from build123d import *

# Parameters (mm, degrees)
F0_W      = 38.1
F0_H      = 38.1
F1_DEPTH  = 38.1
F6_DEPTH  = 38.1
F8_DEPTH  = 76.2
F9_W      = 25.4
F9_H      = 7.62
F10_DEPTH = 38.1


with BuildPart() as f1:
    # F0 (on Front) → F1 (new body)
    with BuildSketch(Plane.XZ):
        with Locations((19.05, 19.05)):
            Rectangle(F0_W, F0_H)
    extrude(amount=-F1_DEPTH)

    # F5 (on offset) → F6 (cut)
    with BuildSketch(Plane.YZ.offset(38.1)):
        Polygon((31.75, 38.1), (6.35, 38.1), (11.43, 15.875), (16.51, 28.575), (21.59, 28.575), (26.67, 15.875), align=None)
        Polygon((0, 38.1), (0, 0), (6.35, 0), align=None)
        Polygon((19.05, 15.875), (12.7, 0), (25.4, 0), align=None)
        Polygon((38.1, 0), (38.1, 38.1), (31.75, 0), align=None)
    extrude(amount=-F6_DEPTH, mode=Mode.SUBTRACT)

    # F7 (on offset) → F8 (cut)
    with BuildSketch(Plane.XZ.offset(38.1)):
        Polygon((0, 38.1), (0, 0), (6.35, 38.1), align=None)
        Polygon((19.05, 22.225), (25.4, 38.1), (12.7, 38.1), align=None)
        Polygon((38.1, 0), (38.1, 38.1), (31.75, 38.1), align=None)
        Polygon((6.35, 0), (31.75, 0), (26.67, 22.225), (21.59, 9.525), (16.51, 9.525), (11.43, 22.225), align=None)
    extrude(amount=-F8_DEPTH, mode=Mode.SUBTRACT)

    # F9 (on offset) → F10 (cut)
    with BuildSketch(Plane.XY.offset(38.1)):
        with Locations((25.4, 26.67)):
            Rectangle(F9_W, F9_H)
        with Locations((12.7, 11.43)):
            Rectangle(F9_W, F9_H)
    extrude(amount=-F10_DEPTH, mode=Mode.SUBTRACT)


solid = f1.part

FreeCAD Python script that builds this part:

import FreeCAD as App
import Part
import Sketcher
from FreeCAD import Vector
Q = App.Units.Quantity


def add_polygon(sketch, points):
    """Adds a closed chain of lines whose ends are joined by coincident constraints."""
    first, n = sketch.GeometryCount, len(points)
    for a, b in zip(points, points[1:] + points[:1]):
        sketch.addGeometry(Part.LineSegment(App.Vector(*a, 0), App.Vector(*b, 0)), False)
    for i in range(n):
        sketch.addConstraint(Sketcher.Constraint("Coincident", first + i, 2, first + (i + 1) % n, 1))

doc = App.newDocument("Part")
body = doc.addObject("PartDesign::Body", "Body")

# Sketch on XZ plane
sketch1 = doc.addObject("Sketcher::SketchObject", "Sketch")
body.addObject(sketch1)
sketch1.AttachmentSupport = (doc.XZ_Plane, [""])
sketch1.MapMode = "FlatFace"
add_polygon(sketch1, [(0, 38.1), (0, 0), (38.1, 0), (38.1, 38.1)])  # lines 0-3
sketch1.addConstraint(Sketcher.Constraint("Vertical", 0))
sketch1.addConstraint(Sketcher.Constraint("Horizontal", 1))
sketch1.addConstraint(Sketcher.Constraint("Vertical", 2))
sketch1.addConstraint(Sketcher.Constraint("Horizontal", 3))
sketch1.addConstraint(Sketcher.Constraint("Coincident", 0, 2, -1, 1))
sketch1.addConstraint(Sketcher.Constraint("Equal", 3, 0))
sketch1.addConstraint(Sketcher.Constraint("DistanceX", 1, 1, 1, 2, Q("1.5 in")))
pad1 = doc.addObject("PartDesign::Pad", "Pad")
body.addObject(pad1)
pad1.Profile = sketch1
pad1.Length = Q("1.5 in")
pad1.Reversed = True

# Sketch on YZ plane
sketch2 = doc.addObject("Sketcher::SketchObject", "Sketch001")
body.addObject(sketch2)
sketch2.AttachmentSupport = (doc.YZ_Plane, [""])
sketch2.MapMode = "FlatFace"
sketch2.AttachmentOffset = App.Placement(Vector(0, 0, 1.5 * 25.4), App.Rotation())
add_polygon(sketch2, [(31.75, 38.1), (6.35, 38.1), (11.43, 15.875), (16.51, 28.575), (21.59, 28.575), (26.67, 15.875)])  # lines 0-5
add_polygon(sketch2, [(0, 38.1), (0, 0), (6.35, 0)])  # lines 6-8
add_polygon(sketch2, [(19.05, 15.875), (12.7, 0), (25.4, 0)])  # lines 9-11
add_polygon(sketch2, [(38.1, 0), (38.1, 38.1), (31.75, 0)])  # lines 12-14
sketch2.addConstraint(Sketcher.Constraint("Horizontal", 0))
sketch2.addConstraint(Sketcher.Constraint("Horizontal", 3))
sketch2.addConstraint(Sketcher.Constraint("Vertical", 6))
sketch2.addConstraint(Sketcher.Constraint("Horizontal", 7))
sketch2.addConstraint(Sketcher.Constraint("Horizontal", 10))
sketch2.addConstraint(Sketcher.Constraint("Vertical", 12))
sketch2.addConstraint(Sketcher.Constraint("Horizontal", 14))
sketch2.addConstraint(Sketcher.Constraint("Coincident", 6, 2, -1, 1))
sketch2.addConstraint(Sketcher.Constraint("PointOnObject", 9, 2, -1))
sketch2.addConstraint(Sketcher.Constraint("PointOnObject", 13, 2, -1))
sketch2.addConstraint(Sketcher.Constraint("Parallel", 2, 9))
sketch2.addConstraint(Sketcher.Constraint("Parallel", 4, 11))
sketch2.addConstraint(Sketcher.Constraint("Horizontal", 1, 2, 4, 2))
sketch2.addConstraint(Sketcher.Constraint("Horizontal", 5, 2, 8, 2))
sketch2.addConstraint(Sketcher.Constraint("Horizontal", 4, 2, 11, 2))
sketch2.addConstraint(Sketcher.Constraint("Horizontal", 8, 2, 12, 2))
sketch2.addConstraint(Sketcher.Constraint("Vertical", 0, 2, 7, 2))
sketch2.addConstraint(Sketcher.Constraint("Vertical", 5, 2, 13, 2))
sketch2.addConstraint(Sketcher.Constraint("Equal", 7, 14))
sketch2.addConstraint(Sketcher.Constraint("Equal", 2, 4))
sketch2.addConstraint(Sketcher.Constraint("Equal", 1, 5))
sketch2.addConstraint(Sketcher.Constraint("DistanceX", 0, 2, 0, 1, Q("1 in")))
sketch2.addConstraint(Sketcher.Constraint("DistanceX", 3, 1, 3, 2, Q("0.2 in")))
sketch2.addConstraint(Sketcher.Constraint("DistanceX", 10, 1, 10, 2, Q("0.5 in")))
sketch2.addConstraint(Sketcher.Constraint("DistanceY", 6, 2, 6, 1, Q("1.5 in")))
sketch2.addConstraint(Sketcher.Constraint("DistanceX", -1, 1, 10, 2, Q("1 in")))
sketch2.addConstraint(Sketcher.Constraint("DistanceX", 9, 2, 14, 2, Q("1 in")))
sketch2.addConstraint(Sketcher.Constraint("DistanceX", 0, 2, 1, 2, Q("0.2 in")))
sketch2.addConstraint(Sketcher.Constraint("DistanceY", 1, 2, 2, 2, Q("0.5 in")))
pocket1 = doc.addObject("PartDesign::Pocket", "Pocket")
body.addObject(pocket1)
pocket1.Profile = sketch2
pocket1.Length = Q("1.5 in")

# Sketch on XZ plane
sketch3 = doc.addObject("Sketcher::SketchObject", "Sketch002")
body.addObject(sketch3)
sketch3.AttachmentSupport = (doc.XZ_Plane, [""])
sketch3.MapMode = "FlatFace"
sketch3.AttachmentOffset = App.Placement(Vector(0, 0, 1.5 * 25.4), App.Rotation())
add_polygon(sketch3, [(0, 38.1), (0, 0), (6.35, 38.1)])  # lines 0-2
add_polygon(sketch3, [(19.05, 22.225), (25.4, 38.1), (12.7, 38.1)])  # lines 3-5
add_polygon(sketch3, [(38.1, 0), (38.1, 38.1), (31.75, 38.1)])  # lines 6-8
add_polygon(sketch3, [(6.35, 0), (31.75, 0), (26.67, 22.225), (21.59, 9.525), (16.51, 9.525), (11.43, 22.225)])  # lines 9-14
sketch3.addConstraint(Sketcher.Constraint("Vertical", 0))
sketch3.addConstraint(Sketcher.Constraint("Horizontal", 2))
sketch3.addConstraint(Sketcher.Constraint("Horizontal", 4))
sketch3.addConstraint(Sketcher.Constraint("Vertical", 6))
sketch3.addConstraint(Sketcher.Constraint("Horizontal", 7))
sketch3.addConstraint(Sketcher.Constraint("Horizontal", 9))
sketch3.addConstraint(Sketcher.Constraint("Horizontal", 12))
sketch3.addConstraint(Sketcher.Constraint("Coincident", 0, 2, -1, 1))
sketch3.addConstraint(Sketcher.Constraint("PointOnObject", 8, 2, -1))
sketch3.addConstraint(Sketcher.Constraint("PointOnObject", 9, 2, -1))
sketch3.addConstraint(Sketcher.Constraint("Parallel", 3, 11))
sketch3.addConstraint(Sketcher.Constraint("Parallel", 5, 13))
sketch3.addConstraint(Sketcher.Constraint("Horizontal", 2, 2, 3, 2))
sketch3.addConstraint(Sketcher.Constraint("Horizontal", 4, 2, 6, 2))
sketch3.addConstraint(Sketcher.Constraint("Horizontal", 5, 2, 10, 2))
sketch3.addConstraint(Sketcher.Constraint("Horizontal", 10, 2, 13, 2))
sketch3.addConstraint(Sketcher.Constraint("Vertical", 7, 2, 9, 2))
sketch3.addConstraint(Sketcher.Constraint("Vertical", 1, 2, 14, 2))
sketch3.addConstraint(Sketcher.Constraint("Equal", 2, 7))
sketch3.addConstraint(Sketcher.Constraint("Equal", 3, 5))
sketch3.addConstraint(Sketcher.Constraint("Equal", 10, 14))
sketch3.addConstraint(Sketcher.Constraint("DistanceX", 9, 1, 9, 2, Q("1 in")))
sketch3.addConstraint(Sketcher.Constraint("DistanceX", 4, 2, 4, 1, Q("0.5 in")))
sketch3.addConstraint(Sketcher.Constraint("DistanceX", 12, 2, 12, 1, Q("0.2 in")))
sketch3.addConstraint(Sketcher.Constraint("DistanceY", 0, 2, 0, 1, Q("1.5 in")))
sketch3.addConstraint(Sketcher.Constraint("DistanceX", -1, 1, 3, 2, Q("1 in")))
sketch3.addConstraint(Sketcher.Constraint("DistanceX", 4, 2, 6, 2, Q("1 in")))
sketch3.addConstraint(Sketcher.Constraint("DistanceX", 5, 2, 10, 2, Q("0.3 in")))
sketch3.addConstraint(Sketcher.Constraint("DistanceY", 11, 2, 5, 2, Q("0.5 in")))
pocket2 = doc.addObject("PartDesign::Pocket", "Pocket001")
body.addObject(pocket2)
pocket2.Profile = sketch3
pocket2.Length = Q("3 in")

# Sketch on XY plane
sketch4 = doc.addObject("Sketcher::SketchObject", "Sketch003")
body.addObject(sketch4)
sketch4.AttachmentSupport = (doc.XY_Plane, [""])
sketch4.MapMode = "FlatFace"
sketch4.AttachmentOffset = App.Placement(Vector(0, 0, 1.5 * 25.4), App.Rotation())
add_polygon(sketch4, [(12.7, 30.48), (12.7, 22.86), (38.1, 22.86), (38.1, 30.48)])  # lines 0-3
add_polygon(sketch4, [(0, 15.24), (0, 7.62), (25.4, 7.62), (25.4, 15.24)])  # lines 4-7
sketch4.addConstraint(Sketcher.Constraint("Vertical", 0))
sketch4.addConstraint(Sketcher.Constraint("Horizontal", 1))
sketch4.addConstraint(Sketcher.Constraint("Vertical", 2))
sketch4.addConstraint(Sketcher.Constraint("Horizontal", 3))
sketch4.addConstraint(Sketcher.Constraint("Vertical", 4))
sketch4.addConstraint(Sketcher.Constraint("Horizontal", 5))
sketch4.addConstraint(Sketcher.Constraint("Vertical", 6))
sketch4.addConstraint(Sketcher.Constraint("Horizontal", 7))
sketch4.addConstraint(Sketcher.Constraint("PointOnObject", 4, 2, -2))
sketch4.addConstraint(Sketcher.Constraint("Equal", 3, 5))
sketch4.addConstraint(Sketcher.Constraint("Equal", 2, 4))
sketch4.addConstraint(Sketcher.Constraint("DistanceX", 1, 1, 1, 2, Q("1 in")))
sketch4.addConstraint(Sketcher.Constraint("DistanceY", 0, 2, 0, 1, Q("0.3 in")))
sketch4.addConstraint(Sketcher.Constraint("DistanceX", -1, 1, 0, 2, Q("0.5 in")))
sketch4.addConstraint(Sketcher.Constraint("DistanceY", -1, 1, 0, 2, Q("0.9 in")))
sketch4.addConstraint(Sketcher.Constraint("DistanceY", -1, 1, 4, 2, Q("0.3 in")))
pocket3 = doc.addObject("PartDesign::Pocket", "Pocket002")
body.addObject(pocket3)
pocket3.Profile = sketch4
pocket3.Length = Q("1.5 in")

doc.recompute()
